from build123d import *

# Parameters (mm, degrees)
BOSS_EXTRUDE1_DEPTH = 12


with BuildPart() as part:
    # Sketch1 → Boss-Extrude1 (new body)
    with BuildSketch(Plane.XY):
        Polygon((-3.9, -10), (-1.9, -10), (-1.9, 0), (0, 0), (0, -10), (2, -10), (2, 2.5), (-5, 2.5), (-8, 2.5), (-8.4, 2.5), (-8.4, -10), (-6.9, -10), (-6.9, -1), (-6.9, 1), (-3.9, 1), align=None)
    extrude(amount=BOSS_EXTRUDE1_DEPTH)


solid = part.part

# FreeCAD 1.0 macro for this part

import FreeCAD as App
import Part
import Sketcher

V = App.Vector

doc = App.newDocument("Part")
params = doc.addObject("Spreadsheet::Sheet", "Params")
for row, (alias, value) in enumerate([
    ("sketch1_width", "2 mm"),
    ("sketch1_width2", "3 mm"),
    ("sketch1_height", "10 mm"),
    ("sketch1_height2", "11 mm"),
    ("sketch1_width3", "1.9 mm"),
    ("pad1_length", "12 mm"),
], start=1):
    params.set(f"A{row}", alias)
    params.set(f"B{row}", "=" + value)
    params.setAlias(f"B{row}", alias)

body = doc.addObject("PartDesign::Body", "Body")

# Sketch on XY plane
sketch1 = body.newObject("Sketcher::SketchObject", "Sketch")
sketch1.AttachmentSupport = (doc.getObject("XY_Plane"), [""])
sketch1.MapMode = "FlatFace"
sketch1.addGeometry([
    Part.LineSegment(V(-3.9, -10, 0), V(-1.9, -10, 0)),  # 0
    Part.LineSegment(V(-1.9, -10, 0), V(-1.9, 0, 0)),  # 1
    Part.LineSegment(V(-1.9, 0, 0), V(0, 0, 0)),  # 2
    Part.LineSegment(V(0, 0, 0), V(0, -10, 0)),  # 3
    Part.LineSegment(V(0, -10, 0), V(2, -10, 0)),  # 4
    Part.LineSegment(V(2, -10, 0), V(2, 2.5, 0)),  # 5
    Part.LineSegment(V(2, 2.5, 0), V(-8.4, 2.5, 0)),  # 6
    Part.LineSegment(V(-8.4, 2.5, 0), V(-8.4, -10, 0)),  # 7
    Part.LineSegment(V(-8.4, -10, 0), V(-6.9, -10, 0)),  # 8
    Part.LineSegment(V(-6.9, -10, 0), V(-6.9, 1, 0)),  # 9
    Part.LineSegment(V(-6.9, 1, 0), V(-3.9, 1, 0)),  # 10
    Part.LineSegment(V(-3.9, 1, 0), V(-3.9, -10, 0)),  # 11
], False)
sketch1.addConstraint([
    Sketcher.Constraint("Coincident", 0, 2, 1, 1),
    Sketcher.Constraint("Coincident", 1, 2, 2, 1),
    Sketcher.Constraint("Coincident", 2, 2, 3, 1),
    Sketcher.Constraint("Coincident", 3, 2, 4, 1),
    Sketcher.Constraint("Coincident", 4, 2, 5, 1),
    Sketcher.Constraint("Coincident", 5, 2, 6, 1),
    Sketcher.Constraint("Coincident", 6, 2, 7, 1),
    Sketcher.Constraint("Coincident", 7, 2, 8, 1),
    Sketcher.Constraint("Coincident", 8, 2, 9, 1),
    Sketcher.Constraint("Coincident", 9, 2, 10, 1),
    Sketcher.Constraint("Coincident", 10, 2, 11, 1),
    Sketcher.Constraint("Coincident", 11, 2, 0, 1),
    Sketcher.Constraint("Horizontal", 0),
    Sketcher.Constraint("Vertical", 1),
    Sketcher.Constraint("Horizontal", 2),
    Sketcher.Constraint("Vertical", 3),
    Sketcher.Constraint("Horizontal", 4),
    Sketcher.Constraint("Vertical", 5),
    Sketcher.Constraint("Horizontal", 6),
    Sketcher.Constraint("Vertical", 7),
    Sketcher.Constraint("Horizontal", 8),
    Sketcher.Constraint("Vertical", 9),
    Sketcher.Constraint("Horizontal", 10),
    Sketcher.Constraint("Vertical", 11),
    Sketcher.Constraint("Coincident", 2, 2, -1, 1),
    Sketcher.Constraint("Horizontal", 0, 2, 3, 2),
    Sketcher.Constraint("Horizontal", 4, 2, 7, 2),
    Sketcher.Constraint("Equal", 0, 4),
    Sketcher.Constraint("DistanceX", 0, 1, 0, 2, 2.0),
    Sketcher.Constraint("DistanceX", 10, 1, 10, 2, 3.0),
    Sketcher.Constraint("DistanceY", 1, 1, 1, 2, 10.0),
    Sketcher.Constraint("DistanceY", 9, 1, 9, 2, 11.0),
    Sketcher.Constraint("DistanceX", 2, 1, 2, 2, 1.9),
    Sketcher.Constraint("DistanceX", 6, 2, 6, 1, 10.4),
    Sketcher.Constraint("DistanceY", 5, 1, 5, 2, 12.5),
])
sketch1.setExpression("Constraints[28]", "Params.sketch1_width")
sketch1.setExpression("Constraints[29]", "Params.sketch1_width2")
sketch1.setExpression("Constraints[30]", "Params.sketch1_height")
sketch1.setExpression("Constraints[31]", "Params.sketch1_height2")
sketch1.setExpression("Constraints[32]", "Params.sketch1_width3")
pad1 = body.newObject("PartDesign::Pad", "Pad")
pad1.Profile = sketch1
pad1.setExpression("Length", "Params.pad1_length")

doc.recompute()
